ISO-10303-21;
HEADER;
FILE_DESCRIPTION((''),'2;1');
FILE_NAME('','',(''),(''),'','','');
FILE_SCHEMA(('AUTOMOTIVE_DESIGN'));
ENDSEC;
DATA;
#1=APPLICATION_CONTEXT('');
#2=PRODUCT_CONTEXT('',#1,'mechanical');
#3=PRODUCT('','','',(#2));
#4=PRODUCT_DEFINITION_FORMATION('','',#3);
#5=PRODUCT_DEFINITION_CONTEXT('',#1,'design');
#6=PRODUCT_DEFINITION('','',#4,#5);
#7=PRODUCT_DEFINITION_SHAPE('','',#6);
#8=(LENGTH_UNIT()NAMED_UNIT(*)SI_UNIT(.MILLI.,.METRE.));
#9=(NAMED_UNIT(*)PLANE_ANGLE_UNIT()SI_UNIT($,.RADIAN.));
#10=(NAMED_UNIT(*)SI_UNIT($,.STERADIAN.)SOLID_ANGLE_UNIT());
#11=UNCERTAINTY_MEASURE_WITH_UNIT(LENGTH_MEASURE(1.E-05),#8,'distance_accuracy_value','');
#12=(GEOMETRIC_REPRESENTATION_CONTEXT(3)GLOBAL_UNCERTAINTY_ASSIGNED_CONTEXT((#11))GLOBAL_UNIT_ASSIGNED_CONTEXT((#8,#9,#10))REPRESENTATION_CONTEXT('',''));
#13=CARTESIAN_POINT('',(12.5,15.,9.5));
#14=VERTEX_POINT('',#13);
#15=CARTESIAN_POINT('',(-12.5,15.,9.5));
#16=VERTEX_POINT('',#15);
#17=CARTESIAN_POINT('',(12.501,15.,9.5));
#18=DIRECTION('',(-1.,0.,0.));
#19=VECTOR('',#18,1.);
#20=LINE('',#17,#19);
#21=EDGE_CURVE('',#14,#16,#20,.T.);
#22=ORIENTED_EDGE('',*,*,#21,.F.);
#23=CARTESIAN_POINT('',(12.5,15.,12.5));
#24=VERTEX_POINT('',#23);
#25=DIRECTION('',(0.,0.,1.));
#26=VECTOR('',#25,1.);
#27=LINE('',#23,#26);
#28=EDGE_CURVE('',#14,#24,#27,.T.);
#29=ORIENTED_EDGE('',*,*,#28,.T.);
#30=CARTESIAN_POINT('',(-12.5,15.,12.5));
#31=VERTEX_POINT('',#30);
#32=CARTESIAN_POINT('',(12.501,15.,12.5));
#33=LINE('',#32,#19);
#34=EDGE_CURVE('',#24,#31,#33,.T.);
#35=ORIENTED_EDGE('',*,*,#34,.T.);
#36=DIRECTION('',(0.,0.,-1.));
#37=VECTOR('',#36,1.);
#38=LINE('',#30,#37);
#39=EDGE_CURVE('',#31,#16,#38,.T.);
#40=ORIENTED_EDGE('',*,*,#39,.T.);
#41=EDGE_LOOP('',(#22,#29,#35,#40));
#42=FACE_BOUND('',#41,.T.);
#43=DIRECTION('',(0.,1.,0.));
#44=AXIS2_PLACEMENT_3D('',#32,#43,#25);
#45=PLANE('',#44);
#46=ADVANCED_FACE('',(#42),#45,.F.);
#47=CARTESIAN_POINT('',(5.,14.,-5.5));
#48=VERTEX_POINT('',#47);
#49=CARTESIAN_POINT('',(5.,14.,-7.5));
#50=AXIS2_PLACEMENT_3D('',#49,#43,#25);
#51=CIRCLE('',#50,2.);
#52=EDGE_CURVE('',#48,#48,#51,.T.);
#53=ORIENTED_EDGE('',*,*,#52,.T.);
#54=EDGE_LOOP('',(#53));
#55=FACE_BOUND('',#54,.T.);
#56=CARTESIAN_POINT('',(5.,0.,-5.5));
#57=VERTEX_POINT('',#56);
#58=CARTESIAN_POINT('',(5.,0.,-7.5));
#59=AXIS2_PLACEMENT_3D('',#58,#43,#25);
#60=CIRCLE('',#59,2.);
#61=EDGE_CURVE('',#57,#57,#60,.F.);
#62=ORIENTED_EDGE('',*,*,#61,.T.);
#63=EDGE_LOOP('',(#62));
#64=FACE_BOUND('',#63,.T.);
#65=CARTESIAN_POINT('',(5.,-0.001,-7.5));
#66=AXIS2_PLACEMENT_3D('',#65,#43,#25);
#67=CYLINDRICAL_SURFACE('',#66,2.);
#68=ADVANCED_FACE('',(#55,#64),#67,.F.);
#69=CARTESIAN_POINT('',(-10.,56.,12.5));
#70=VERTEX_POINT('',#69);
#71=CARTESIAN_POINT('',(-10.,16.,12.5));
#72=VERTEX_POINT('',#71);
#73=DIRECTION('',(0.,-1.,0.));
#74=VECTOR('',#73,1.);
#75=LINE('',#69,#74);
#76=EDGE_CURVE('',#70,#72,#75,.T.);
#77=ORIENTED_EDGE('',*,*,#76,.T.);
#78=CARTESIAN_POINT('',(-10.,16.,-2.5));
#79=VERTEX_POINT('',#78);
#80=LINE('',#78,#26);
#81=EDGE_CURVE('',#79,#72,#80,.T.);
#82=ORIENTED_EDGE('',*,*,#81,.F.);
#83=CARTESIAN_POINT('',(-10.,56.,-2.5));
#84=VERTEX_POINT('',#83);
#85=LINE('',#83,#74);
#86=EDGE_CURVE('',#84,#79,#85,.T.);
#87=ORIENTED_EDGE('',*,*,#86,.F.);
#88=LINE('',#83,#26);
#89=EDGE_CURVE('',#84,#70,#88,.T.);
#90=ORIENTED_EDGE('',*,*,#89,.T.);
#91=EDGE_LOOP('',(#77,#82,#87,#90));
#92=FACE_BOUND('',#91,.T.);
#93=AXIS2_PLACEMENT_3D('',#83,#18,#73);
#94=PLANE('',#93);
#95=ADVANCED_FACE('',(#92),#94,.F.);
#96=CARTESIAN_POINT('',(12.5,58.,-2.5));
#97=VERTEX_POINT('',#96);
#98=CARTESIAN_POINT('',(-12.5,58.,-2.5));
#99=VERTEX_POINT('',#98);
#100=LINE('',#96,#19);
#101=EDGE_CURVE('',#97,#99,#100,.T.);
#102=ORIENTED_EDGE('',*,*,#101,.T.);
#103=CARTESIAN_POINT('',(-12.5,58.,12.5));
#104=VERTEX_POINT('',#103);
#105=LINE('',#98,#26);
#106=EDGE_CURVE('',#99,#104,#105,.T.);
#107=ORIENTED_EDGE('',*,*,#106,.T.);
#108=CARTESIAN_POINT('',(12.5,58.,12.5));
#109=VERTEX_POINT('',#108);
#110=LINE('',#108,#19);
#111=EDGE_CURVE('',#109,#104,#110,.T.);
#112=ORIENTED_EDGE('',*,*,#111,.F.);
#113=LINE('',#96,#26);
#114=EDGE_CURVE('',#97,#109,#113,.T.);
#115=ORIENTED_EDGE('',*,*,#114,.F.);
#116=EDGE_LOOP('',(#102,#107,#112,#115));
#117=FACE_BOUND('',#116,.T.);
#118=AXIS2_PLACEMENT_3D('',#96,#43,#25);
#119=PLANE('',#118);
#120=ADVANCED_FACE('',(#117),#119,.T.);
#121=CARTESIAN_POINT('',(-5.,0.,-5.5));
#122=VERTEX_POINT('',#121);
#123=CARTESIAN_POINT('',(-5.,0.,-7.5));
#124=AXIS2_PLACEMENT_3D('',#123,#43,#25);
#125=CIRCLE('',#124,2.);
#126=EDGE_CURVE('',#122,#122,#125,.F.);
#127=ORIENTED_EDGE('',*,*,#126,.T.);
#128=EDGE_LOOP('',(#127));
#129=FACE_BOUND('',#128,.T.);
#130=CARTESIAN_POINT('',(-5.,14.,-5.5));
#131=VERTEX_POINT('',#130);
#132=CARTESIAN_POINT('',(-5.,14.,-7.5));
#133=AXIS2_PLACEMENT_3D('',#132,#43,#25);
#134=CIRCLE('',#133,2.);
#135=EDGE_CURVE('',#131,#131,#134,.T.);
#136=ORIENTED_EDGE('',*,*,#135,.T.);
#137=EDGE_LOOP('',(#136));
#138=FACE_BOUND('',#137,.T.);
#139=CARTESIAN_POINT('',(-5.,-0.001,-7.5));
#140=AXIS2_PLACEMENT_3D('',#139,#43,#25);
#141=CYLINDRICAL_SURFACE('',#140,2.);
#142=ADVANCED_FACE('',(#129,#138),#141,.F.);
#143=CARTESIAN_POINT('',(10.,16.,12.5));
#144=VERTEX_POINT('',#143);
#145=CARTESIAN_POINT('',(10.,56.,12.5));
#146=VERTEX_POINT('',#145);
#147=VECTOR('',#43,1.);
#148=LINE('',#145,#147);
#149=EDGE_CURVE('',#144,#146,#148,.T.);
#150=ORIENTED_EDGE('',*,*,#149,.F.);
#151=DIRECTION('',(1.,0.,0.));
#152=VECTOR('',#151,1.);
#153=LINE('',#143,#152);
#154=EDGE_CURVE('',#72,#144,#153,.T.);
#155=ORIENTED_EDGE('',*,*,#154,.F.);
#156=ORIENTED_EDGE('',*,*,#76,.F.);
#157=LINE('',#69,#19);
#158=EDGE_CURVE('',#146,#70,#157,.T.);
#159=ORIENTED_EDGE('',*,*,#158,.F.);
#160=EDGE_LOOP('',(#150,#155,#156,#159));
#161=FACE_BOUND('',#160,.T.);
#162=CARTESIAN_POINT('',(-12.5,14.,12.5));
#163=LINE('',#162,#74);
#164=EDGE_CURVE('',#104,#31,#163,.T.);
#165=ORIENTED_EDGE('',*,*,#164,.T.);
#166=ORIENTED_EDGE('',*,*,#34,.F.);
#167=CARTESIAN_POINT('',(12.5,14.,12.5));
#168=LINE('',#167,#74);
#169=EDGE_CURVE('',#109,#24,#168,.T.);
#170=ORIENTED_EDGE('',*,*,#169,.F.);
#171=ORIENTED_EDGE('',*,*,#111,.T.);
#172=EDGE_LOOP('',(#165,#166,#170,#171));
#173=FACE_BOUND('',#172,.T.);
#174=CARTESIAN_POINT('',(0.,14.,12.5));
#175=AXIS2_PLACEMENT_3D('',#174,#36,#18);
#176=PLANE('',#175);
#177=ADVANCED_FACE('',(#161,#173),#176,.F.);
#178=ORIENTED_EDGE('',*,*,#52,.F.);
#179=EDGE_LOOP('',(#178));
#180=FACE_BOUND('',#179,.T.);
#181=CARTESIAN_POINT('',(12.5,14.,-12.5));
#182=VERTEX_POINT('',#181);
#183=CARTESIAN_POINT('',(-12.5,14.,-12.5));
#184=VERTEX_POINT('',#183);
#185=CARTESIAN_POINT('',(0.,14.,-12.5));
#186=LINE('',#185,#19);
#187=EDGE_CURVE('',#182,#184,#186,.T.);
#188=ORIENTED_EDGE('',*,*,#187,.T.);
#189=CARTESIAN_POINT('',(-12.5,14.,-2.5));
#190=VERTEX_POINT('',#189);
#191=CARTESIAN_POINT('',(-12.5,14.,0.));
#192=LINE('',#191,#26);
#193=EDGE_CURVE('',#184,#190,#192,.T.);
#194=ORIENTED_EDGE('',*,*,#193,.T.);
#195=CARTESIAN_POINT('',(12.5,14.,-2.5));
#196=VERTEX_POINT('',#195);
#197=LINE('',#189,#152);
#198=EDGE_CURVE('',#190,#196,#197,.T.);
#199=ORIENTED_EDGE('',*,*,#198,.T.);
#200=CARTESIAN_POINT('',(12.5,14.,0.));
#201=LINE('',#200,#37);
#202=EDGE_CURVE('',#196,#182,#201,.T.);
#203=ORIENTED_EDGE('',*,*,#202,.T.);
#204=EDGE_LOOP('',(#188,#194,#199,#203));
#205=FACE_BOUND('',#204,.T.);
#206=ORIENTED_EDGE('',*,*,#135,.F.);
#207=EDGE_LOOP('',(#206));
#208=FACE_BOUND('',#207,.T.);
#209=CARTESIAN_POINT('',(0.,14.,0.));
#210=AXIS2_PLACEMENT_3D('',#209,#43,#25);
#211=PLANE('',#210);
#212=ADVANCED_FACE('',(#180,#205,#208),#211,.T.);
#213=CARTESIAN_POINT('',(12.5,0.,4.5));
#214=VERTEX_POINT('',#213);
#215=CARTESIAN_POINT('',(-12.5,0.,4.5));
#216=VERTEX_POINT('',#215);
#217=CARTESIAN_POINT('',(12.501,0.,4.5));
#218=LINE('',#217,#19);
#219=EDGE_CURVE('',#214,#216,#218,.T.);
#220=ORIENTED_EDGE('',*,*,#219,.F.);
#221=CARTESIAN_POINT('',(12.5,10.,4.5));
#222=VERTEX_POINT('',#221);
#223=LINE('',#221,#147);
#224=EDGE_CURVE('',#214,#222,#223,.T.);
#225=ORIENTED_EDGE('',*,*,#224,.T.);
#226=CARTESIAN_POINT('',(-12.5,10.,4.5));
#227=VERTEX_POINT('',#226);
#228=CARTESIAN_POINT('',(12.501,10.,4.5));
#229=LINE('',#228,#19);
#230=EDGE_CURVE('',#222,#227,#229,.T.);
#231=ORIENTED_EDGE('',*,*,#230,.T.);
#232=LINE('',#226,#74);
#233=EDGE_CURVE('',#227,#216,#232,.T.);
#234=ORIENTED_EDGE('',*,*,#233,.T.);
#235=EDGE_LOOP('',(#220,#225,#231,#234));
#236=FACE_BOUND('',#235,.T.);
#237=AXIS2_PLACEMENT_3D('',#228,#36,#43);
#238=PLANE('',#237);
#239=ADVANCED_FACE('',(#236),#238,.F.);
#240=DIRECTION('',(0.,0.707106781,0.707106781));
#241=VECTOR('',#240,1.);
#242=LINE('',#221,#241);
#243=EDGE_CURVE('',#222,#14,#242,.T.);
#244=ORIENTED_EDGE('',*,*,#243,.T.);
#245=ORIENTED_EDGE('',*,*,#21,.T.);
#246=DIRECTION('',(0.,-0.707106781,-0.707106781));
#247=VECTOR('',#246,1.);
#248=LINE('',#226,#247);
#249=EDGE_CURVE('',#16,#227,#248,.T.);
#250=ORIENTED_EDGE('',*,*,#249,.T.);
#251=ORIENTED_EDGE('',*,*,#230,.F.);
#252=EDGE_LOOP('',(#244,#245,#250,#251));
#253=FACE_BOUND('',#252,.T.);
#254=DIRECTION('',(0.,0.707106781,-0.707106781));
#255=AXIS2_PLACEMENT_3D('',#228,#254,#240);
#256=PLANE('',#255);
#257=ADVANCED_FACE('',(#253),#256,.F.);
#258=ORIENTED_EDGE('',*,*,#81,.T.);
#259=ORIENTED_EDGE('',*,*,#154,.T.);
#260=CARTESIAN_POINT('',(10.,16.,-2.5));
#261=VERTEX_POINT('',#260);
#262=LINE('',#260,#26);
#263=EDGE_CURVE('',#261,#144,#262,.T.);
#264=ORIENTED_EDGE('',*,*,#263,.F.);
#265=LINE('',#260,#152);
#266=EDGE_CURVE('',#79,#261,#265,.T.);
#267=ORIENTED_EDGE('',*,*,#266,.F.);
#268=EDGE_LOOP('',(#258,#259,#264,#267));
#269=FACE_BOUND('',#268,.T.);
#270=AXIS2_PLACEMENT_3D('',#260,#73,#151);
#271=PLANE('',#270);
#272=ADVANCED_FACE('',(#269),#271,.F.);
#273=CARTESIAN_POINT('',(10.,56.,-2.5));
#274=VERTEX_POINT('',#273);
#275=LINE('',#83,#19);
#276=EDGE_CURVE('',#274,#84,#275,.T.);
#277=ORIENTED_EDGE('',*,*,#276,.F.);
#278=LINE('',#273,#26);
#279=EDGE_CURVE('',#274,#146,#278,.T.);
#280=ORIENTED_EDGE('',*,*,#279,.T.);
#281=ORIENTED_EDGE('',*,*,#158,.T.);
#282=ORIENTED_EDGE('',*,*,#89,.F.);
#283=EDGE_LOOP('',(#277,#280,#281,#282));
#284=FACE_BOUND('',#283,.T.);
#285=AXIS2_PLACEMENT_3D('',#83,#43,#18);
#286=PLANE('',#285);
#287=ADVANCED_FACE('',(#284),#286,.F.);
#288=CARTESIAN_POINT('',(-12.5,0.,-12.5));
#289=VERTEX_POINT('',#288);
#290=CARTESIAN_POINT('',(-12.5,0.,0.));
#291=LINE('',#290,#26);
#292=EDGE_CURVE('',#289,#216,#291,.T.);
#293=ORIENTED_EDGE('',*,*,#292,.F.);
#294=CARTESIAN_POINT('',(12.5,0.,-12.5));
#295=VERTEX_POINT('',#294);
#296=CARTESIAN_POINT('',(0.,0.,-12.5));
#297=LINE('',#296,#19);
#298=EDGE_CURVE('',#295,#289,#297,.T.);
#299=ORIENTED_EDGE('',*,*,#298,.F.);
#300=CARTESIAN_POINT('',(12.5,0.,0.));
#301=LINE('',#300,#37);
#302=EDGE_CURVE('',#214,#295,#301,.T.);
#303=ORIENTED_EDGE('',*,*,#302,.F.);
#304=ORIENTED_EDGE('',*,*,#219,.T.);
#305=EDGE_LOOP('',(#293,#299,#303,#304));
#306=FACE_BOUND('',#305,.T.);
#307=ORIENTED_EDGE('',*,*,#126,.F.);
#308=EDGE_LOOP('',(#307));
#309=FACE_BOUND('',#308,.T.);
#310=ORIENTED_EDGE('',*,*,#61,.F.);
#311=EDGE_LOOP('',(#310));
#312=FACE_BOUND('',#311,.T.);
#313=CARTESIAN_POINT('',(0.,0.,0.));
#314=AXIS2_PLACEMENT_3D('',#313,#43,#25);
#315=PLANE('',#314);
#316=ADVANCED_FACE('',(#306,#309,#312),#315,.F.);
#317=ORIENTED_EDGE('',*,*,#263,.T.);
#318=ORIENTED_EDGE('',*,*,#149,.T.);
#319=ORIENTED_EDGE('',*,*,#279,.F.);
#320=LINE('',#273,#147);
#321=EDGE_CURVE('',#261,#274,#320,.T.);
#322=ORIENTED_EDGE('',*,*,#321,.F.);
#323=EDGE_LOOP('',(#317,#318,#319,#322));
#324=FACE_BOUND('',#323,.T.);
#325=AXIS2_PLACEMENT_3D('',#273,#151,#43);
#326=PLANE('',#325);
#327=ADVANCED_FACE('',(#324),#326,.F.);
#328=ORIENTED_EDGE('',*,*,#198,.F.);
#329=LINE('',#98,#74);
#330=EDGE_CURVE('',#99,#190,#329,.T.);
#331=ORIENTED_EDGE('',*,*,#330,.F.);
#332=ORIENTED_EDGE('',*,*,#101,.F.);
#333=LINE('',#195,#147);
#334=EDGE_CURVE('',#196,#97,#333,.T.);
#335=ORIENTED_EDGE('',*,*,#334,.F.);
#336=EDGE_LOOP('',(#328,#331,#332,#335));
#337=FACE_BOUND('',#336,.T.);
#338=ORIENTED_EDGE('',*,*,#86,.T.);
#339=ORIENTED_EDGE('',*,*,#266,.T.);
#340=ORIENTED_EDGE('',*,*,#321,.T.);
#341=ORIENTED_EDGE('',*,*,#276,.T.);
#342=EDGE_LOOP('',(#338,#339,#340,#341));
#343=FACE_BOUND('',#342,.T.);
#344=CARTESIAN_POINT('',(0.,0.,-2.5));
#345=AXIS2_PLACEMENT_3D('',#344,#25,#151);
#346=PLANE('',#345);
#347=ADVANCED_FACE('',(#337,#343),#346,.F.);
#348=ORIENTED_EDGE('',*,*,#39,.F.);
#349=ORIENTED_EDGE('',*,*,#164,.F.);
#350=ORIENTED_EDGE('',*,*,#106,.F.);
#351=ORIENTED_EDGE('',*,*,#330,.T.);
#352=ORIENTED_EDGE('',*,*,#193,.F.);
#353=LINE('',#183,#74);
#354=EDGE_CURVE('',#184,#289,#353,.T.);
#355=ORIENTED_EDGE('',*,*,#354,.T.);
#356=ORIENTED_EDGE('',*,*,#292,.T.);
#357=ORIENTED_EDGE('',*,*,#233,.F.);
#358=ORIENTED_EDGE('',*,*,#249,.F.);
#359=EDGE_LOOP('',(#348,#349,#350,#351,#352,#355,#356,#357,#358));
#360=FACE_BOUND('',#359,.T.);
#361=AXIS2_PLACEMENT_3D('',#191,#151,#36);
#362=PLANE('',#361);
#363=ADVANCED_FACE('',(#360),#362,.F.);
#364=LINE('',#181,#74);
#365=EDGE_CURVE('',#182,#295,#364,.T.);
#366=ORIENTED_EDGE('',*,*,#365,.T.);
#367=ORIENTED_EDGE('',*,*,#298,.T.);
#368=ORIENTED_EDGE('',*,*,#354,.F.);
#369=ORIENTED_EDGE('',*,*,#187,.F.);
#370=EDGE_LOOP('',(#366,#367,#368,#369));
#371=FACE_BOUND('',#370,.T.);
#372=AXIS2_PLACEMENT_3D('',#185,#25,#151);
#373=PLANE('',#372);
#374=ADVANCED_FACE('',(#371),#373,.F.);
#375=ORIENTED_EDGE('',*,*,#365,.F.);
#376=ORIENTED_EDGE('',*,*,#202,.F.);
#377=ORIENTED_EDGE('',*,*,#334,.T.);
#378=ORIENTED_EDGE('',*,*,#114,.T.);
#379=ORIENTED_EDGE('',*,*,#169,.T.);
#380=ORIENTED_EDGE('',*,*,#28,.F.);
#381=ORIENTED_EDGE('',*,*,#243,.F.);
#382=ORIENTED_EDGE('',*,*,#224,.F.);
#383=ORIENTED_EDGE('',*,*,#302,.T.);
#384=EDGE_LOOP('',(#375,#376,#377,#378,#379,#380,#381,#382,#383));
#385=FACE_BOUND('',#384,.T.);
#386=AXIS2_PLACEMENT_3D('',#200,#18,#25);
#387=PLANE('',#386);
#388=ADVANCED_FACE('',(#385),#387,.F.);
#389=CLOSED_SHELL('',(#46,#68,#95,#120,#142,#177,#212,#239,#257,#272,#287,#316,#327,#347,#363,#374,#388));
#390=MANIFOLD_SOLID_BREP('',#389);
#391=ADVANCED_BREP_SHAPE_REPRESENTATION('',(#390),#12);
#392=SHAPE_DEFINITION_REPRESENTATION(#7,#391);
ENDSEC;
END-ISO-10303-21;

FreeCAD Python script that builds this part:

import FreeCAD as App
import Part
import Sketcher


def add_polygon(sketch, points):
    """Adds a closed chain of lines whose ends are joined by coincident constraints."""
    first, n = sketch.GeometryCount, len(points)
    for a, b in zip(points, points[1:] + points[:1]):
        sketch.addGeometry(Part.LineSegment(App.Vector(*a, 0), App.Vector(*b, 0)), False)
    for i in range(n):
        sketch.addConstraint(Sketcher.Constraint("Coincident", first + i, 2, first + (i + 1) % n, 1))

doc = App.newDocument("Part")
body = doc.addObject("PartDesign::Body", "Body")

# Sketch on XZ plane
sketch1 = doc.addObject("Sketcher::SketchObject", "Sketch")
body.addObject(sketch1)
sketch1.AttachmentSupport = (doc.XZ_Plane, [""])
sketch1.MapMode = "FlatFace"
add_polygon(sketch1, [(12, 12), (12, -12), (-12, -12), (-12, 12)])  # lines 0-3
sketch1.addConstraint(Sketcher.Constraint("Vertical", 0))
sketch1.addConstraint(Sketcher.Constraint("Horizontal", 1))
sketch1.addConstraint(Sketcher.Constraint("Vertical", 2))
sketch1.addConstraint(Sketcher.Constraint("Horizontal", 3))
sketch1.addConstraint(Sketcher.Constraint("Symmetric", 0, 2, 2, 2, -1, 1))
sketch1.addConstraint(Sketcher.Constraint("Equal", 3, 0))
sketch1.addConstraint(Sketcher.Constraint("DistanceX", 1, 2, 1, 1, 25.0))
pad1 = doc.addObject("PartDesign::Pad", "Pad")
body.addObject(pad1)
pad1.Profile = sketch1
pad1.Length = 14
pad1.Reversed = True

# Sketch on XY plane
sketch2 = doc.addObject("Sketcher::SketchObject", "Sketch001")
body.addObject(sketch2)
sketch2.AttachmentSupport = (doc.XY_Plane, [""])
sketch2.MapMode = "FlatFace"
sketch2.AttachmentOffset = App.Placement(App.Vector(0, 0, 12.5), App.Rotation())
add_polygon(sketch2, [(-12, 14), (12, 14), (12, 58), (-12, 58)])  # lines 0-3
add_polygon(sketch2, [(10, 16), (-10, 16), (-10, 56), (10, 56)])  # lines 4-7
sketch2.addConstraint(Sketcher.Constraint("Horizontal", 0))
sketch2.addConstraint(Sketcher.Constraint("Vertical", 1))
sketch2.addConstraint(Sketcher.Constraint("Horizontal", 2))
sketch2.addConstraint(Sketcher.Constraint("Vertical", 3))
sketch2.addConstraint(Sketcher.Constraint("Horizontal", 4))
sketch2.addConstraint(Sketcher.Constraint("Vertical", 5))
sketch2.addConstraint(Sketcher.Constraint("Horizontal", 6))
sketch2.addConstraint(Sketcher.Constraint("Vertical", 7))
sketch2.addConstraint(Sketcher.Constraint("DistanceX", 0, 1, 0, 2, 25.0))
sketch2.addConstraint(Sketcher.Constraint("DistanceX", 4, 2, 4, 1, 20.0))
sketch2.addConstraint(Sketcher.Constraint("DistanceY", 1, 1, 1, 2, 44.0))
sketch2.addConstraint(Sketcher.Constraint("DistanceY", 5, 1, 5, 2, 40.0))
sketch2.addConstraint(Sketcher.Constraint("DistanceY", -1, 1, 0, 2, 14.0))
sketch2.addConstraint(Sketcher.Constraint("DistanceX", 4, 2, -1, 1, 10.0))
sketch2.addConstraint(Sketcher.Constraint("DistanceY", -1, 1, 4, 2, 16.0))
sketch2.addConstraint(Sketcher.Constraint("DistanceX", -1, 1, 0, 2, 12.5))
pad2 = doc.addObject("PartDesign::Pad", "Pad001")
body.addObject(pad2)
pad2.Profile = sketch2
pad2.Length = 15
pad2.Reversed = True

# Sketch on YZ plane
sketch3 = doc.addObject("Sketcher::SketchObject", "Sketch002")
body.addObject(sketch3)
sketch3.AttachmentSupport = (doc.YZ_Plane, [""])
sketch3.MapMode = "FlatFace"
sketch3.AttachmentOffset = App.Placement(App.Vector(0, 0, -12.5), App.Rotation())
add_polygon(sketch3, [(0, 4.5), (0, 12.5), (15, 12.5), (15, 9.5), (10, 4.5)])  # lines 0-4
sketch3.addConstraint(Sketcher.Constraint("Vertical", 0))
sketch3.addConstraint(Sketcher.Constraint("Horizontal", 1))
sketch3.addConstraint(Sketcher.Constraint("Vertical", 2))
sketch3.addConstraint(Sketcher.Constraint("Horizontal", 4))
sketch3.addConstraint(Sketcher.Constraint("PointOnObject", 0, 2, -2))
sketch3.addConstraint(Sketcher.Constraint("DistanceX", 1, 1, 1, 2, 15.0))
sketch3.addConstraint(Sketcher.Constraint("DistanceX", 4, 2, 4, 1, 10.0))
sketch3.addConstraint(Sketcher.Constraint("DistanceY", 0, 1, 0, 2, 8.0))
sketch3.addConstraint(Sketcher.Constraint("DistanceY", 2, 2, 2, 1, 3.0))
sketch3.addConstraint(Sketcher.Constraint("DistanceY", -1, 1, 0, 2, 12.5))
pocket1 = doc.addObject("PartDesign::Pocket", "Pocket")
body.addObject(pocket1)
pocket1.Profile = sketch3
pocket1.Type = "UpToFirst"
pocket1.Reversed = True

# Sketch on XZ plane
sketch4 = doc.addObject("Sketcher::SketchObject", "Sketch003")
body.addObject(sketch4)
sketch4.AttachmentSupport = (doc.XZ_Plane, [""])
sketch4.MapMode = "FlatFace"
sketch4.AttachmentOffset = App.Placement(App.Vector(0, 0, -14), App.Rotation())
sketch4.addGeometry(Part.Circle(App.Vector(5, -7.5, 0), App.Vector(0, 0, 1), 2), False)
sketch4.addConstraint(Sketcher.Constraint("Diameter", 0, 4.0))
sketch4.addConstraint(Sketcher.Constraint("DistanceX", -1, 1, 0, 3, 5.0))
sketch4.addConstraint(Sketcher.Constraint("DistanceY", 0, 3, -1, 1, 7.5))
pocket2 = doc.addObject("PartDesign::Pocket", "Pocket001")
body.addObject(pocket2)
pocket2.Profile = sketch4
pocket2.Type = "UpToFirst"
pocket2.Reversed = True

# Sketch on XZ plane
sketch5 = doc.addObject("Sketcher::SketchObject", "Sketch004")
body.addObject(sketch5)
sketch5.AttachmentSupport = (doc.XZ_Plane, [""])
sketch5.MapMode = "FlatFace"
sketch5.AttachmentOffset = App.Placement(App.Vector(0, 0, -14), App.Rotation())
sketch5.addGeometry(Part.Circle(App.Vector(-5, -7.5, 0), App.Vector(0, 0, 1), 2), False)
sketch5.addConstraint(Sketcher.Constraint("Diameter", 0, 4.0))
sketch5.addConstraint(Sketcher.Constraint("DistanceX", 0, 3, -1, 1, 5.0))
sketch5.addConstraint(Sketcher.Constraint("DistanceY", 0, 3, -1, 1, 7.5))
pocket3 = doc.addObject("PartDesign::Pocket", "Pocket002")
body.addObject(pocket3)
pocket3.Profile = sketch5
pocket3.Type = "UpToFirst"
pocket3.Reversed = True

doc.recompute()
